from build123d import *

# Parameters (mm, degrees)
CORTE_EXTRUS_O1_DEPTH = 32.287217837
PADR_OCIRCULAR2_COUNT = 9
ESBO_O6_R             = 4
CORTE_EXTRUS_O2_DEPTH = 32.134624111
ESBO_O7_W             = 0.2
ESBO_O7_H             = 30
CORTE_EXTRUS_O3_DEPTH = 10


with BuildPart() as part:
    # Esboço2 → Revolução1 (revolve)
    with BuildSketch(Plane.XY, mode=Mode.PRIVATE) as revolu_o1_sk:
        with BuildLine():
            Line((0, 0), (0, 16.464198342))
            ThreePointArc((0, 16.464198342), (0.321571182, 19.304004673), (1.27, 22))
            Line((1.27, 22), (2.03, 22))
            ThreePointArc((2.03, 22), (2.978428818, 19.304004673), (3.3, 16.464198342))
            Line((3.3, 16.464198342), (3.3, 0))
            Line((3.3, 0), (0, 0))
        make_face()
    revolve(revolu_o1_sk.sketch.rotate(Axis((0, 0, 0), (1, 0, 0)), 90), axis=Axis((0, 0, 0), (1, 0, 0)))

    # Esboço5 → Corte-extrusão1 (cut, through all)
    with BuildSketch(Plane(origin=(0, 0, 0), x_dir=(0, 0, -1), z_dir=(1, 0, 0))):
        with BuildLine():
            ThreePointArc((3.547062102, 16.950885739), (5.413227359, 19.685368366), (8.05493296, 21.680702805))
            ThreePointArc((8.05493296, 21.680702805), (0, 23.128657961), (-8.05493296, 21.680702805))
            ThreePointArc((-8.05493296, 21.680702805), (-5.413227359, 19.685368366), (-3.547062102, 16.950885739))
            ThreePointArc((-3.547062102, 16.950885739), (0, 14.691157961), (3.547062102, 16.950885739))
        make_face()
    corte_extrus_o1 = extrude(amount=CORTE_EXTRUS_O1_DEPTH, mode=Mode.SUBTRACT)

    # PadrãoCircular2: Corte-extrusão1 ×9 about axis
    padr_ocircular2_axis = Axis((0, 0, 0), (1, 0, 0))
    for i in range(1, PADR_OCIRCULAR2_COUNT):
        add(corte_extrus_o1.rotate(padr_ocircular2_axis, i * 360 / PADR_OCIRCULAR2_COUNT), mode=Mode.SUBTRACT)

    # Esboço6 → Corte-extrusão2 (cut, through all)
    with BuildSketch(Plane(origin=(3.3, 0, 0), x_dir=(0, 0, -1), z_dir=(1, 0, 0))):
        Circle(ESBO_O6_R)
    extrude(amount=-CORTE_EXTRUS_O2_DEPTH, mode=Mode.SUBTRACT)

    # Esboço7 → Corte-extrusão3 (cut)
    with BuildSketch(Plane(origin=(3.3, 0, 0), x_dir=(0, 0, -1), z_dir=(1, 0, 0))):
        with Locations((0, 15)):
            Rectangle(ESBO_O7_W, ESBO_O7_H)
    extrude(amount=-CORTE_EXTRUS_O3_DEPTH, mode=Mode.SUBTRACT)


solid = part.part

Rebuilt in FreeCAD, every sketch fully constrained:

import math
import FreeCAD as App
import Part
import Sketcher
from FreeCAD import Vector

doc = App.newDocument("Part")
body = doc.addObject("PartDesign::Body", "Body")

sketch1 = doc.addObject("Sketcher::SketchObject", "Sketch")
body.addObject(sketch1)
sketch1.AttachmentSupport = (doc.XY_Plane, [""])
sketch1.MapMode = "FlatFace"
sketch1.addGeometry(Part.LineSegment(Vector(0, 16.464198, 0), Vector(0, 0, 0)), False)
sketch1.addGeometry(Part.LineSegment(Vector(0, 0, 0), Vector(3.3, 0, 0)), False)
sketch1.addGeometry(Part.LineSegment(Vector(3.3, 0, 0), Vector(3.3, 16.464198, 0)), False)
sketch1.addGeometry(Part.ArcOfCircle(Part.Circle(Vector(-9.4, 16.464198, 0), Vector(0, 0, 1), 12.7), math.radians(0), math.radians(25.841933)), False)
sketch1.addGeometry(Part.LineSegment(Vector(2.03, 22, 0), Vector(1.27, 22, 0)), False)
sketch1.addGeometry(Part.ArcOfCircle(Part.Circle(Vector(12.7, 16.464198, 0), Vector(0, 0, 1), 12.7), math.radians(154.158067), math.radians(180)), False)
sketch1.addConstraint(Sketcher.Constraint("Coincident", 0, 2, 1, 1))
sketch1.addConstraint(Sketcher.Constraint("Coincident", 1, 2, 2, 1))
sketch1.addConstraint(Sketcher.Constraint("Tangent", 2, 2, 3, 1))
sketch1.addConstraint(Sketcher.Constraint("Coincident", 3, 2, 4, 1))
sketch1.addConstraint(Sketcher.Constraint("Coincident", 4, 2, 5, 1))
sketch1.addConstraint(Sketcher.Constraint("Tangent", 5, 2, 0, 1))
sketch1.addConstraint(Sketcher.Constraint("Vertical", 0))
sketch1.addConstraint(Sketcher.Constraint("Horizontal", 1))
sketch1.addConstraint(Sketcher.Constraint("Vertical", 2))
sketch1.addConstraint(Sketcher.Constraint("Horizontal", 4))
sketch1.addConstraint(Sketcher.Constraint("Coincident", 0, 2, -1, 1))
sketch1.addConstraint(Sketcher.Constraint("Equal", 3, 5))
sketch1.addConstraint(Sketcher.Constraint("Horizontal", 3, 3, 5, 3))
sketch1.addConstraint(Sketcher.Constraint("Radius", 3, 12.7))
sketch1.addConstraint(Sketcher.Constraint("DistanceX", 1, 1, 1, 2, 3.3))
sketch1.addConstraint(Sketcher.Constraint("DistanceY", -1, 1, 3, 2, 22.0))
sketch1.addConstraint(Sketcher.Constraint("DistanceX", 4, 2, 4, 1, 0.76))
revolution = doc.addObject("PartDesign::Revolution", "Revolution")
body.addObject(revolution)
revolution.Profile = sketch1
revolution.ReferenceAxis = (sketch1, ["H_Axis"])
revolution.Angle = 360

sketch2 = doc.addObject("Sketcher::SketchObject", "Sketch001")
body.addObject(sketch2)
sketch2.AttachmentSupport = (doc.YZ_Plane, [""])
sketch2.MapMode = "FlatFace"
sketch2.addGeometry(Part.ArcOfCircle(Part.Circle(Vector(12.627501, -12.818591, 0), Vector(0, 0, 1), 10.23), math.radians(27.752666), math.radians(65)), False)
sketch2.addGeometry(Part.ArcOfCircle(Part.Circle(Vector(0, 0, 0), Vector(0, 0, 1), 23.128658), math.radians(-20.381313), math.radians(20.381313)), False)
sketch2.addGeometry(Part.ArcOfCircle(Part.Circle(Vector(12.627501, 12.818591, 0), Vector(0, 0, 1), 10.23), math.radians(-65), math.radians(-27.752666)), False)
sketch2.addGeometry(Part.ArcOfCircle(Part.Circle(Vector(18.604908, 0, 0), Vector(0, 0, 1), 3.91375), math.radians(115), math.radians(245)), False)
sketch2.addConstraint(Sketcher.Constraint("Coincident", 0, 1, 1, 1))
sketch2.addConstraint(Sketcher.Constraint("Coincident", 1, 2, 2, 2))
sketch2.addConstraint(Sketcher.Constraint("Tangent", 2, 1, 3, 1))
sketch2.addConstraint(Sketcher.Constraint("Tangent", 3, 2, 0, 2))
sketch2.addConstraint(Sketcher.Constraint("Coincident", 1, 3, -1, 1))
sketch2.addConstraint(Sketcher.Constraint("Equal", 0, 2))
sketch2.addConstraint(Sketcher.Constraint("Symmetric", 0, 3, 2, 3, -1))
sketch2.addConstraint(Sketcher.Constraint("Radius", 0, 10.23))
sketch2.addConstraint(Sketcher.Constraint("Radius", 3, 3.91375))
sketch2.addConstraint(Sketcher.Constraint("Radius", 1, 23.128658))
sketch2.addConstraint(Sketcher.Constraint("DistanceX", -1, 1, 0, 3, 12.627501))
sketch2.addConstraint(Sketcher.Constraint("DistanceX", 0, 3, 0, 1, 9.053202))
pocket1 = doc.addObject("PartDesign::Pocket", "Pocket")
body.addObject(pocket1)
pocket1.Profile = sketch2
pocket1.Type = "ThroughAll"
pocket1.Reversed = True
doc.recompute()

polarpattern = doc.addObject("PartDesign::PolarPattern", "PolarPattern")
body.addObject(polarpattern)
polarpattern.Originals = [pocket1]
polarpattern.Axis = (doc.X_Axis, [""])
polarpattern.Angle = 360
polarpattern.Occurrences = 9
body.Tip = polarpattern

sketch3 = doc.addObject("Sketcher::SketchObject", "Sketch002")
body.addObject(sketch3)
sketch3.AttachmentSupport = (doc.YZ_Plane, [""])
sketch3.MapMode = "FlatFace"
sketch3.AttachmentOffset = App.Placement(Vector(0, 0, 3.3), App.Rotation())
sketch3.addGeometry(Part.Circle(Vector(0, 0, 0), Vector(0, 0, 1), 4), False)
sketch3.addConstraint(Sketcher.Constraint("Coincident", 0, 3, -1, 1))
sketch3.addConstraint(Sketcher.Constraint("Diameter", 0, 8.0))
pocket2 = doc.addObject("PartDesign::Pocket", "Pocket001")
body.addObject(pocket2)
pocket2.Profile = sketch3
pocket2.Type = "ThroughAll"

sketch4 = doc.addObject("Sketcher::SketchObject", "Sketch003")
body.addObject(sketch4)
sketch4.AttachmentSupport = (doc.YZ_Plane, [""])
sketch4.MapMode = "FlatFace"
sketch4.AttachmentOffset = App.Placement(Vector(0, 0, 3.3), App.Rotation())
sketch4.addGeometry(Part.LineSegment(Vector(30, 0.1, 0), Vector(0, 0.1, 0)), False)
sketch4.addGeometry(Part.LineSegment(Vector(0, 0.1, 0), Vector(0, -0.1, 0)), False)
sketch4.addGeometry(Part.LineSegment(Vector(0, -0.1, 0), Vector(30, -0.1, 0)), False)
sketch4.addGeometry(Part.LineSegment(Vector(30, -0.1, 0), Vector(30, 0.1, 0)), False)
sketch4.addConstraint(Sketcher.Constraint("Coincident", 0, 2, 1, 1))
sketch4.addConstraint(Sketcher.Constraint("Coincident", 1, 2, 2, 1))
sketch4.addConstraint(Sketcher.Constraint("Coincident", 2, 2, 3, 1))
sketch4.addConstraint(Sketcher.Constraint("Coincident", 3, 2, 0, 1))
sketch4.addConstraint(Sketcher.Constraint("Horizontal", 0))
sketch4.addConstraint(Sketcher.Constraint("Vertical", 1))
sketch4.addConstraint(Sketcher.Constraint("Horizontal", 2))
sketch4.addConstraint(Sketcher.Constraint("Vertical", 3))
sketch4.addConstraint(Sketcher.Constraint("Symmetric", 0, 2, 1, 2, -1, 1))
sketch4.addConstraint(Sketcher.Constraint("DistanceX", 0, 2, 0, 1, 30.0))
sketch4.addConstraint(Sketcher.Constraint("DistanceY", 1, 2, 1, 1, 0.2))
pocket3 = doc.addObject("PartDesign::Pocket", "Pocket002")
body.addObject(pocket3)
pocket3.Profile = sketch4
pocket3.Length = 10

doc.recompute()
